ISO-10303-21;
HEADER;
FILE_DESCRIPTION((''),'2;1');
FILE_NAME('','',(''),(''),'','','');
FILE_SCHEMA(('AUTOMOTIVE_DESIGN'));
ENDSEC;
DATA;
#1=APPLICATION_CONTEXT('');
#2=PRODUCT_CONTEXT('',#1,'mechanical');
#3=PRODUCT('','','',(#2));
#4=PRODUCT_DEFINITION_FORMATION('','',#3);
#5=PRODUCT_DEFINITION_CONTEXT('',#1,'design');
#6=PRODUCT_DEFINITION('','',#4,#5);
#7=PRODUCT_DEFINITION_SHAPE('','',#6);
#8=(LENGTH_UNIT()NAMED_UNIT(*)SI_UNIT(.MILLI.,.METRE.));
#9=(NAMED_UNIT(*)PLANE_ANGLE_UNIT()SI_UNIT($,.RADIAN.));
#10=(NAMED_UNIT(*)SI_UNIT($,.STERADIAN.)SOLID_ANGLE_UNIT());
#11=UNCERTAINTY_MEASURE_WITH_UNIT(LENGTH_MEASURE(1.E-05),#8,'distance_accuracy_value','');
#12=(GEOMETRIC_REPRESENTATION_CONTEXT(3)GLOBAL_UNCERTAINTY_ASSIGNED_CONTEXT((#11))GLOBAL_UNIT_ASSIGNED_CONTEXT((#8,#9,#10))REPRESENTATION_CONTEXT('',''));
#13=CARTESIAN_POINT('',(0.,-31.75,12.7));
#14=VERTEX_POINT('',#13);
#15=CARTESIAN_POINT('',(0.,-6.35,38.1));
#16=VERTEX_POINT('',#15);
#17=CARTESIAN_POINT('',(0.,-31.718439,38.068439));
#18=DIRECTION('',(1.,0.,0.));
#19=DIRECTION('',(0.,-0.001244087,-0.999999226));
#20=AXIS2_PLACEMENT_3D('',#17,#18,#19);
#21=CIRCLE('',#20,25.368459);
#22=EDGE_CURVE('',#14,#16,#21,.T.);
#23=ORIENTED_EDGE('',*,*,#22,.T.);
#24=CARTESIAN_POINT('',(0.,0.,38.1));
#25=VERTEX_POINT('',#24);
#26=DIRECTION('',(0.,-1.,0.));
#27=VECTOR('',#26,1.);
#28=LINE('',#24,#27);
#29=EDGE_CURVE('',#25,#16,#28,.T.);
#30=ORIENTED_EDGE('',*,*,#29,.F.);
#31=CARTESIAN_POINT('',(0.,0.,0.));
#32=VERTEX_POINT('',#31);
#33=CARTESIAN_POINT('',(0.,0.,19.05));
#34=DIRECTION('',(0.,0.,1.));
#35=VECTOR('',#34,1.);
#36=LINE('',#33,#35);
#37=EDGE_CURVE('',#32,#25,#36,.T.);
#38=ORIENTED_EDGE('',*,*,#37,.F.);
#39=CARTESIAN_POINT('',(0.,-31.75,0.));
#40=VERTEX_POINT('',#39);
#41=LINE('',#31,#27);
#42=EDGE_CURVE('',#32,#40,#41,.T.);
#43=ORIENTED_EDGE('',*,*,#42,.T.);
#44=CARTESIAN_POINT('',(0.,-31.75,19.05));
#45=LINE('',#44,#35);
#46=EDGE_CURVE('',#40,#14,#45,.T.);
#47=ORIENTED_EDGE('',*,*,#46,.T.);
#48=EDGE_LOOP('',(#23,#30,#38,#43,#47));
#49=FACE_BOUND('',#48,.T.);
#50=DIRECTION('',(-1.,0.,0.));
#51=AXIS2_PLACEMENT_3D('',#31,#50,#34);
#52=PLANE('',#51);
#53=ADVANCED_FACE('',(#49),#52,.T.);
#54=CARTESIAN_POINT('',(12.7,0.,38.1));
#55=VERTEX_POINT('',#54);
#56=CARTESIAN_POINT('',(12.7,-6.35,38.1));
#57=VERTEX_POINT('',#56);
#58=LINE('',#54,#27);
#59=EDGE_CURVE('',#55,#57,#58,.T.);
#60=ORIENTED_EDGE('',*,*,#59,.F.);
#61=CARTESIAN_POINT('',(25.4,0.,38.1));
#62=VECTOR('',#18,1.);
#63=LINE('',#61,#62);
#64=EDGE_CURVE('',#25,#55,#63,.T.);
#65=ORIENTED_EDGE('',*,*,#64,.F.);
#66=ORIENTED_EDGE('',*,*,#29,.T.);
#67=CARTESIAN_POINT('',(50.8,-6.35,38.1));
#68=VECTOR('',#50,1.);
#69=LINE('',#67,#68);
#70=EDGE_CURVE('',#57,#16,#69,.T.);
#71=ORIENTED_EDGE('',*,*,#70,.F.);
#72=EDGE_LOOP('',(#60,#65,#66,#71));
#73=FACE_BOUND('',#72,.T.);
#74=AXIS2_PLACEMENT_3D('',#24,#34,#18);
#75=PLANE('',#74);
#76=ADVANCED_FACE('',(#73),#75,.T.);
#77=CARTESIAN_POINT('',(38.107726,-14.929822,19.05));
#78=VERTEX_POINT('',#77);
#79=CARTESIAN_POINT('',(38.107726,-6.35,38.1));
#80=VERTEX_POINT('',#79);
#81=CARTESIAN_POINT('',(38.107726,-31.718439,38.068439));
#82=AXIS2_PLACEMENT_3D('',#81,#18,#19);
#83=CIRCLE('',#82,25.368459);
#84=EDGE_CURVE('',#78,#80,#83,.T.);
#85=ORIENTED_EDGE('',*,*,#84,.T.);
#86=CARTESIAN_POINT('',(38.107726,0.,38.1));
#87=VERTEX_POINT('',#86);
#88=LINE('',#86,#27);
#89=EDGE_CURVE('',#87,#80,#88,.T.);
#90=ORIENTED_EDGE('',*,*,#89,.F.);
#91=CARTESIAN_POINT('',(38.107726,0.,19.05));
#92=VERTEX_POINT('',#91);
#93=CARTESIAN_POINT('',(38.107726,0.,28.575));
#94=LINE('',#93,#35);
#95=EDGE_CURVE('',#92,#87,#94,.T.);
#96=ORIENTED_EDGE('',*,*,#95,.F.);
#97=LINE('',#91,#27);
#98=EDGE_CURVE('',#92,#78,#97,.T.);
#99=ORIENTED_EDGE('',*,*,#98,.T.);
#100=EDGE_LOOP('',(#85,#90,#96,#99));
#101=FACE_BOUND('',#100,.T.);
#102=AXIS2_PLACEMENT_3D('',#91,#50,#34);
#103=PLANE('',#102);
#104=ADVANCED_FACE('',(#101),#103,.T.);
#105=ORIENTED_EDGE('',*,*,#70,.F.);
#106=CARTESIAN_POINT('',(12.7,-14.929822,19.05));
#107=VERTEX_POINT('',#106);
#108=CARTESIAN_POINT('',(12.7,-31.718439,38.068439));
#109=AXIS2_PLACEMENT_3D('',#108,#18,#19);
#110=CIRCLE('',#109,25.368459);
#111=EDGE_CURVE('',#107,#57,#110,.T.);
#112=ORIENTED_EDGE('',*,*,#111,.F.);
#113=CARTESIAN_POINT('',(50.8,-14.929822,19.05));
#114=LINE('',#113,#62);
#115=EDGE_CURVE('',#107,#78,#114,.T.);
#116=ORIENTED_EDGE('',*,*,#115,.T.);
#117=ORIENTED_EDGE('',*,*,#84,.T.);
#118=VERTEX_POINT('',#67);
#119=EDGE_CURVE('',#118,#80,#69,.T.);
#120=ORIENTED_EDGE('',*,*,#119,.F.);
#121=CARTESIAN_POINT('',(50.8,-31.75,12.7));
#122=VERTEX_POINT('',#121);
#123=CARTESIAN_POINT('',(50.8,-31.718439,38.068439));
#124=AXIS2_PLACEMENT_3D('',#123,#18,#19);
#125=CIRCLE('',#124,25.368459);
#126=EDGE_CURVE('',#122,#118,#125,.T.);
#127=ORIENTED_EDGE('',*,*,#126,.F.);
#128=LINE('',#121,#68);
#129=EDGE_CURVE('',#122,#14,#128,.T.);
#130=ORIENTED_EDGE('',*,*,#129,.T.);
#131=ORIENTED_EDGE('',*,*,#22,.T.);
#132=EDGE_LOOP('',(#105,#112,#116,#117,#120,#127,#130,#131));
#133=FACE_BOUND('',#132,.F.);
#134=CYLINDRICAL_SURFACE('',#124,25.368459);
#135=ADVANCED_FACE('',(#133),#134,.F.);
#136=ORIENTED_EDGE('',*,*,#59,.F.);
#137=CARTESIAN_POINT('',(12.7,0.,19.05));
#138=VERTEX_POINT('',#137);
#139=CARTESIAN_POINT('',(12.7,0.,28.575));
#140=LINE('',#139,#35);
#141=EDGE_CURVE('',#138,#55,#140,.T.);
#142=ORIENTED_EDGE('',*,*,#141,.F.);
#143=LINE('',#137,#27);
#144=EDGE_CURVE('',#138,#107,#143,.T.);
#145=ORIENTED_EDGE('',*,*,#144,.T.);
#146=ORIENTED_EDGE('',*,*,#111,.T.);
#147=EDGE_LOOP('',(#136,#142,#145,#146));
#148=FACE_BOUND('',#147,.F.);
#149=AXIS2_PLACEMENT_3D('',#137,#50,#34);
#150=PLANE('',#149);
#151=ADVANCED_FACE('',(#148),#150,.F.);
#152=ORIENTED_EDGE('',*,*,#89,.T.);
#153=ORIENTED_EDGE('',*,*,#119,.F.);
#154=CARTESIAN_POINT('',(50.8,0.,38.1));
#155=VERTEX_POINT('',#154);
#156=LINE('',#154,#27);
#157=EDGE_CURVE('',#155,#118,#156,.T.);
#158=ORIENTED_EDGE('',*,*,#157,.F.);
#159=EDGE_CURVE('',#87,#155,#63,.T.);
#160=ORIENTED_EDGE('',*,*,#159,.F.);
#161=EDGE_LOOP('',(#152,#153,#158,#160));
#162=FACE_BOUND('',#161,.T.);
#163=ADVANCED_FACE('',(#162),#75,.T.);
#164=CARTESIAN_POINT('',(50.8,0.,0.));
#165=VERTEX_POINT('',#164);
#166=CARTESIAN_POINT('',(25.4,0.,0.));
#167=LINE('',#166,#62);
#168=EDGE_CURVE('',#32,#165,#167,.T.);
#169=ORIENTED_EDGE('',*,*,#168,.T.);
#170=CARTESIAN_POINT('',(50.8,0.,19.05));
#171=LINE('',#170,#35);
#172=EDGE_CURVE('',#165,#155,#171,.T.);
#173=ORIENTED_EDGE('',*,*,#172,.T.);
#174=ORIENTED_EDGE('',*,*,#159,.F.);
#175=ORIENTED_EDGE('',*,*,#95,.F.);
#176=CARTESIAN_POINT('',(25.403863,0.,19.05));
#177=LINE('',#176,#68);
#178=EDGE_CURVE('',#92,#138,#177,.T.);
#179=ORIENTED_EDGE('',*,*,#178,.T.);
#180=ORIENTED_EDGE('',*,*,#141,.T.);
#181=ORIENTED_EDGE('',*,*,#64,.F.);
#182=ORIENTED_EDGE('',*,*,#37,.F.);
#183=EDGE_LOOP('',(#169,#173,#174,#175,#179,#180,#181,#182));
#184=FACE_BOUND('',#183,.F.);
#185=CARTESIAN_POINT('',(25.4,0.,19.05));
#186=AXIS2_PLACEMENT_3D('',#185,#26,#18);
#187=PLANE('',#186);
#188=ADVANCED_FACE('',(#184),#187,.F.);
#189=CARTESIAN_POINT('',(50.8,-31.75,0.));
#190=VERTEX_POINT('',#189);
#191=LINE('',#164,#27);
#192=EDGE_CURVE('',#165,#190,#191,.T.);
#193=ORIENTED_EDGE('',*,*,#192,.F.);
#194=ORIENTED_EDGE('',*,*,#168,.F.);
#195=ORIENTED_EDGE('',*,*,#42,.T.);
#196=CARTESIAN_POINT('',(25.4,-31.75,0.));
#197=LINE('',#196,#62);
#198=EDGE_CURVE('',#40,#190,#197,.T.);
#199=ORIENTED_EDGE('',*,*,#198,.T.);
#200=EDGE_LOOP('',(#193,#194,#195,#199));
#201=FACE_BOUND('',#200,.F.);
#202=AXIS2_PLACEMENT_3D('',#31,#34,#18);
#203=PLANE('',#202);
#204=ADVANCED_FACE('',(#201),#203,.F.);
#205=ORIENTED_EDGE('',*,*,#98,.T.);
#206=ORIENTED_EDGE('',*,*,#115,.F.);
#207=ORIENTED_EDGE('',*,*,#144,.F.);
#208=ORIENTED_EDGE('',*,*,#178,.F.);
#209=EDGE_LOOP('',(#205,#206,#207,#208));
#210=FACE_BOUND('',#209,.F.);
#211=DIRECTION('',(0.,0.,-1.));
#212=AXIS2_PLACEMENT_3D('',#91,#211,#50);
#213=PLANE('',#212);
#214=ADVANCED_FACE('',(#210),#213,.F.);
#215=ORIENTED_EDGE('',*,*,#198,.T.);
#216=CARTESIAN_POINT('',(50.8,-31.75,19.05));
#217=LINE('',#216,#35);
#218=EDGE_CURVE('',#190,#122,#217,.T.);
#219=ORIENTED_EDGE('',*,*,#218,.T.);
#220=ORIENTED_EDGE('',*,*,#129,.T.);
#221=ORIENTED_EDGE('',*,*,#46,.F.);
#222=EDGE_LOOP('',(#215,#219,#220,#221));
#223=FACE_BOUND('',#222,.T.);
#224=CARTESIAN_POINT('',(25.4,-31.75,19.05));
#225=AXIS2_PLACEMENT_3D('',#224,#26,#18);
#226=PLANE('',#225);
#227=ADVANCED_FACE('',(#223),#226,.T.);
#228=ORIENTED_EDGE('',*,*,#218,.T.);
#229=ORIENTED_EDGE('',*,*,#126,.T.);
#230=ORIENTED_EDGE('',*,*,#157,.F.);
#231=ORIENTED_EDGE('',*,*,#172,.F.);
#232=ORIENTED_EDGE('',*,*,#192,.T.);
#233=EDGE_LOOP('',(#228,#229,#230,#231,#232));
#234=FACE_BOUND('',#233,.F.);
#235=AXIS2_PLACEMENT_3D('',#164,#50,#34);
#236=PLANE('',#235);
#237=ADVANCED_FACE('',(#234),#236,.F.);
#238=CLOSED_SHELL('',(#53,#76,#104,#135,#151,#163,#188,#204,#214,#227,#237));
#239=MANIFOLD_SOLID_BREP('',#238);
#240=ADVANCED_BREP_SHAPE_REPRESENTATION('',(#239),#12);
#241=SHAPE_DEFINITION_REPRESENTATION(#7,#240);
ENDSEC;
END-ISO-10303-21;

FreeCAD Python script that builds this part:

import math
import FreeCAD as App
import Part
import Sketcher
from FreeCAD import Vector
Q = App.Units.Quantity


def add_polygon(sketch, points):
    """Adds a closed chain of lines whose ends are joined by coincident constraints."""
    first, n = sketch.GeometryCount, len(points)
    for a, b in zip(points, points[1:] + points[:1]):
        sketch.addGeometry(Part.LineSegment(App.Vector(*a, 0), App.Vector(*b, 0)), False)
    for i in range(n):
        sketch.addConstraint(Sketcher.Constraint("Coincident", first + i, 2, first + (i + 1) % n, 1))

doc = App.newDocument("Part")
params = doc.addObject("Spreadsheet::Sheet", "Params")
for row, (alias, value) in enumerate([
    ("sketch1_width", "2 in"),
    ("sketch1_height", "1.5 in"),
    ("pad1_length", "1.25 in"),
    ("sketch2_width", "1 in"),
    ("sketch3_height", "0.75 in"),
], start=1):
    params.set(f"A{row}", alias)
    params.set(f"B{row}", "=" + value)
    params.setAlias(f"B{row}", alias)

body = doc.addObject("PartDesign::Body", "Body")

# Sketch on XZ plane
sketch1 = body.newObject("Sketcher::SketchObject", "Sketch")
sketch1.AttachmentSupport = (doc.getObject("XZ_Plane"), [""])
sketch1.MapMode = "FlatFace"
add_polygon(sketch1, [(0, 38.1), (0, 0), (50.8, 0), (50.8, 38.1)])  # lines 0-3
sketch1.addConstraint([
    Sketcher.Constraint("Vertical", 0),
    Sketcher.Constraint("Horizontal", 1),
    Sketcher.Constraint("Vertical", 2),
    Sketcher.Constraint("Horizontal", 3),
    Sketcher.Constraint("Coincident", 0, 2, -1, 1),
    Sketcher.Constraint("DistanceX", 1, 1, 1, 2, Q("2 in")),
    Sketcher.Constraint("DistanceY", 0, 2, 0, 1, Q("1.5 in")),
])
sketch1.setExpression("Constraints[9]", "Params.sketch1_width")
sketch1.setExpression("Constraints[10]", "Params.sketch1_height")
pad1 = body.newObject("PartDesign::Pad", "Pad")
pad1.Profile = sketch1
pad1.setExpression("Length", "Params.pad1_length")

# Sketch on YZ plane
sketch2 = body.newObject("Sketcher::SketchObject", "Sketch001")
sketch2.AttachmentSupport = (doc.getObject("YZ_Plane"), [""])
sketch2.MapMode = "FlatFace"
sketch2.AttachmentOffset = App.Placement(Vector(0, 0, 2 * 25.4), App.Rotation())
sketch2.addGeometry([
    Part.LineSegment(Vector(-31.75, 38.1, 0), Vector(-31.75, 12.7, 0)),
    Part.ArcOfCircle(Part.Circle(Vector(-31.718439, 38.068439, 0), Vector(0, 0, 1), 25.368459), math.radians(-90.071281), math.radians(0.071281)),
    Part.LineSegment(Vector(-6.35, 38.1, 0), Vector(-31.75, 38.1, 0)),
], False)
sketch2.addConstraint([
    Sketcher.Constraint("Coincident", 0, 2, 1, 1),
    Sketcher.Constraint("Coincident", 1, 2, 2, 1),
    Sketcher.Constraint("Coincident", 2, 2, 0, 1),
    Sketcher.Constraint("Vertical", 0),
    Sketcher.Constraint("Horizontal", 2),
    Sketcher.Constraint("Equal", 2, 0),
    Sketcher.Constraint("DistanceX", 2, 2, 2, 1, Q("1 in")),
    Sketcher.Constraint("DistanceY", -1, 1, 0, 2, Q("0.5 in")),
    Sketcher.Constraint("DistanceX", 0, 2, -1, 1, Q("1.25 in")),
    Sketcher.Constraint("Radius", 1, 25.368459),
])
sketch2.setExpression("Constraints[6]", "Params.sketch2_width")
pocket1 = body.newObject("PartDesign::Pocket", "Pocket")
pocket1.Profile = sketch2
pocket1.Type = "ThroughAll"

# Sketch on XZ plane
sketch3 = body.newObject("Sketcher::SketchObject", "Sketch002")
sketch3.AttachmentSupport = (doc.getObject("XZ_Plane"), [""])
sketch3.MapMode = "FlatFace"
add_polygon(sketch3, [(38.107726, 38.1), (38.107726, 19.05), (12.7, 19.05), (12.7, 38.1)])  # lines 0-3
sketch3.addConstraint([
    Sketcher.Constraint("Vertical", 0),
    Sketcher.Constraint("Horizontal", 1),
    Sketcher.Constraint("Vertical", 2),
    Sketcher.Constraint("Horizontal", 3),
    Sketcher.Constraint("DistanceY", 0, 2, 0, 1, Q("0.75 in")),
    Sketcher.Constraint("DistanceX", -1, 1, 1, 2, Q("0.5 in")),
    Sketcher.Constraint("DistanceY", -1, 1, 2, 2, Q("1.5 in")),
    Sketcher.Constraint("DistanceX", 1, 2, 1, 1, 25.407727),
])
sketch3.setExpression("Constraints[8]", "Params.sketch3_height")
pocket2 = body.newObject("PartDesign::Pocket", "Pocket001")
pocket2.Profile = sketch3
pocket2.Type = "ThroughAll"
pocket2.Reversed = True

doc.recompute()
